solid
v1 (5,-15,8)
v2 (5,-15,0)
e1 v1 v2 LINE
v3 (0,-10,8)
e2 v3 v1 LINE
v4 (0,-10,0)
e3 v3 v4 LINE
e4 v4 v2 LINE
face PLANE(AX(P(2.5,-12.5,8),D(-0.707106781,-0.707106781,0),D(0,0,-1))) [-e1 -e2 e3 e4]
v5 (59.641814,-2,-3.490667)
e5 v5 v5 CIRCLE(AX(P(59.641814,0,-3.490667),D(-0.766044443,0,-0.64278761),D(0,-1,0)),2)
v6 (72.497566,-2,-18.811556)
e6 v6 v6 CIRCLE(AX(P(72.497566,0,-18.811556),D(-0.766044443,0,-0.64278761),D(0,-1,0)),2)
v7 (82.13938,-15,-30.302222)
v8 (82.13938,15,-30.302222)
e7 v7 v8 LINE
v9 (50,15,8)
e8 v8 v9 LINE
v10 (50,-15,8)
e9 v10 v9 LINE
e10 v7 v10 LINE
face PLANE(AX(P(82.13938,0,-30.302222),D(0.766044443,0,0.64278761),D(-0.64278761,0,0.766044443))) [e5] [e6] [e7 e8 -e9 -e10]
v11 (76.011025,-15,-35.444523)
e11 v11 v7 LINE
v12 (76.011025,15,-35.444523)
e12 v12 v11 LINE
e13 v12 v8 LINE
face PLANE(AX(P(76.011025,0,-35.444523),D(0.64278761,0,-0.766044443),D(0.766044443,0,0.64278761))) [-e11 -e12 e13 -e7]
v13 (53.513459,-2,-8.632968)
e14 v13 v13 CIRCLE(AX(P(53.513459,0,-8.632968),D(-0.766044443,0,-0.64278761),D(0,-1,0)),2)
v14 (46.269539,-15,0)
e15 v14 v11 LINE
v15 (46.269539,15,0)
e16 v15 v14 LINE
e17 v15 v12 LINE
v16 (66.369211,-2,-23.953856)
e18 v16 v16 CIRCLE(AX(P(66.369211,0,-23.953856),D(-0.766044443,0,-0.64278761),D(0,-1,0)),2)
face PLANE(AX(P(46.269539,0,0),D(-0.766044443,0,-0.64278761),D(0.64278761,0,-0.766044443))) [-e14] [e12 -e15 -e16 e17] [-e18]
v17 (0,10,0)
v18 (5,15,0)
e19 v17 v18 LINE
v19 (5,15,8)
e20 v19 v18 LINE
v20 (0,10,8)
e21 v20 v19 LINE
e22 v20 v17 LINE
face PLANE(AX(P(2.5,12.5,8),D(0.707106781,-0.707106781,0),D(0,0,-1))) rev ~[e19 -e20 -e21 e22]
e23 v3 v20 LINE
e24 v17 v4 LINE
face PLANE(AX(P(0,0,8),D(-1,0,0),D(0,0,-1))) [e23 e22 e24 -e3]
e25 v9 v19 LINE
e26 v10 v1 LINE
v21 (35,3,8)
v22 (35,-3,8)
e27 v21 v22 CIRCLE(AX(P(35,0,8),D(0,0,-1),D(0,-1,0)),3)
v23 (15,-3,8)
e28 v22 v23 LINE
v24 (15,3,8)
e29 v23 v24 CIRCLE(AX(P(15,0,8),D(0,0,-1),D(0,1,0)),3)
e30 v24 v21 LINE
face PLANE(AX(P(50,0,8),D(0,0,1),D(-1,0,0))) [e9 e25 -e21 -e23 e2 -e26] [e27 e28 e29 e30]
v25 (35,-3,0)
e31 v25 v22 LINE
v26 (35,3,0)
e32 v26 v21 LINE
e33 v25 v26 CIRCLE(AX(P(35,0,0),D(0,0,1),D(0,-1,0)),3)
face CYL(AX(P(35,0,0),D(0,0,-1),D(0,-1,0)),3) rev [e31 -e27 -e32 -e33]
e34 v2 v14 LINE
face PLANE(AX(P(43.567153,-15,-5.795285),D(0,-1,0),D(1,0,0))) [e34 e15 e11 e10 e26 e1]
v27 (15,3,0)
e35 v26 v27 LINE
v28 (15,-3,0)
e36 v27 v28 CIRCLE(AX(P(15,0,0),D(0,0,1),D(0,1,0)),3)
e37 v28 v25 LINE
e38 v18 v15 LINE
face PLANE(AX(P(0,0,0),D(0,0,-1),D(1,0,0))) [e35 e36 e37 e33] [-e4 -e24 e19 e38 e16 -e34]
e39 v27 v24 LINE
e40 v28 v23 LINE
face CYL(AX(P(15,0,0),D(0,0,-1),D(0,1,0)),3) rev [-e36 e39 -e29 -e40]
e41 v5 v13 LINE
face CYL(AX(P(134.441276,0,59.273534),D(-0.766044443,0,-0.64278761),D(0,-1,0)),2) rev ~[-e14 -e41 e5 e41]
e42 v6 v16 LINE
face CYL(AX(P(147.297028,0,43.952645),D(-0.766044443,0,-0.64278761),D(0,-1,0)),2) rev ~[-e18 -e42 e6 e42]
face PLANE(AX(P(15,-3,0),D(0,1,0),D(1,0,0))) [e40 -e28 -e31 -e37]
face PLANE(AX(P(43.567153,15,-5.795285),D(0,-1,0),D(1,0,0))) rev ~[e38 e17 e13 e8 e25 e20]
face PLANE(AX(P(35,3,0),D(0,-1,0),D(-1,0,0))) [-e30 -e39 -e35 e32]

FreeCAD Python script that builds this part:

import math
import FreeCAD as App
import Part
import Sketcher
Q = App.Units.Quantity


def edges_at(feature, points):
    """Names of the edges that pass closest to the given points."""
    edges = feature.Shape.Edges
    near = lambda p: min(range(len(edges)), key=lambda i: edges[i].distToShape(Part.Vertex(*p))[0])
    return sorted({f"Edge{near(p) + 1}" for p in points})


def add_polygon(sketch, points):
    """Adds a closed chain of lines whose ends are joined by coincident constraints."""
    first, n = sketch.GeometryCount, len(points)
    for a, b in zip(points, points[1:] + points[:1]):
        sketch.addGeometry(Part.LineSegment(App.Vector(*a, 0), App.Vector(*b, 0)), False)
    for i in range(n):
        sketch.addConstraint(Sketcher.Constraint("Coincident", first + i, 2, first + (i + 1) % n, 1))

doc = App.newDocument("Part")
body = doc.addObject("PartDesign::Body", "Body")

sketch1 = doc.addObject("Sketcher::SketchObject", "Sketch")
body.addObject(sketch1)
sketch1.AttachmentSupport = (doc.XZ_Plane, [""])
sketch1.MapMode = "FlatFace"
add_polygon(sketch1, [(0, 8), (0, 0), (46.269539, 0), (76.011025, -35.444523), (82.13938, -30.302222), (50, 8)])
sketch1.addConstraint(Sketcher.Constraint("Vertical", 0))
sketch1.addConstraint(Sketcher.Constraint("Horizontal", 1))
sketch1.addConstraint(Sketcher.Constraint("Horizontal", 5))
sketch1.addConstraint(Sketcher.Constraint("Coincident", 0, 2, -1, 1))
sketch1.addConstraint(Sketcher.Constraint("Perpendicular", 2, 3))
sketch1.addConstraint(Sketcher.Constraint("Perpendicular", 3, 4))
sketch1.addConstraint(Sketcher.Constraint("DistanceX", 5, 2, 5, 1, Q("50 mm")))
sketch1.addConstraint(Sketcher.Constraint("DistanceY", 0, 2, 0, 1, Q("8 mm")))
sketch1.addConstraint(Sketcher.Constraint("Angle", 2, Q("-50 deg")))
sketch1.addConstraint(Sketcher.Constraint("Distance", 3, Q("8 mm")))
sketch1.addConstraint(Sketcher.Constraint("Distance", 4, Q("50 mm")))
pad1 = doc.addObject("PartDesign::Pad", "Pad")
body.addObject(pad1)
pad1.Profile = sketch1
pad1.Length = 30
pad1.Midplane = True

sketch2 = doc.addObject("Sketcher::SketchObject", "Sketch001")
body.addObject(sketch2)
sketch2.AttachmentSupport = (doc.XY_Plane, [""])
sketch2.MapMode = "FlatFace"
sketch2.addGeometry(Part.ArcOfCircle(Part.Circle(App.Vector(15, 0, 0), App.Vector(0, 0, 1), 3), math.radians(90), math.radians(270)), False)
sketch2.addGeometry(Part.LineSegment(App.Vector(15, -3, 0), App.Vector(35, -3, 0)), False)
sketch2.addGeometry(Part.ArcOfCircle(Part.Circle(App.Vector(35, 0, 0), App.Vector(0, 0, 1), 3), math.radians(-90), math.radians(90)), False)
sketch2.addGeometry(Part.LineSegment(App.Vector(35, 3, 0), App.Vector(15, 3, 0)), False)
sketch2.addConstraint(Sketcher.Constraint("Tangent", 0, 2, 1, 1))
sketch2.addConstraint(Sketcher.Constraint("Tangent", 1, 2, 2, 1))
sketch2.addConstraint(Sketcher.Constraint("Tangent", 2, 2, 3, 1))
sketch2.addConstraint(Sketcher.Constraint("Tangent", 3, 2, 0, 1))
sketch2.addConstraint(Sketcher.Constraint("Horizontal", 1))
sketch2.addConstraint(Sketcher.Constraint("Horizontal", 3))
sketch2.addConstraint(Sketcher.Constraint("PointOnObject", 0, 3, -1))
sketch2.addConstraint(Sketcher.Constraint("Radius", 0, Q("3 mm")))
sketch2.addConstraint(Sketcher.Constraint("DistanceX", 1, 1, 1, 2, Q("20 mm")))
sketch2.addConstraint(Sketcher.Constraint("DistanceX", -1, 1, 0, 3, Q("15 mm")))
pocket1 = doc.addObject("PartDesign::Pocket", "Pocket")
body.addObject(pocket1)
pocket1.Profile = sketch2
pocket1.Type = "ThroughAll"
pocket1.Reversed = True

sketch3 = doc.addObject("Sketcher::SketchObject", "Sketch002")
body.addObject(sketch3)
sketch3.Placement = App.Placement(App.Vector(33.280435, 0, 27.925601), App.Rotation(App.Vector(0, 1, 0), App.Vector(-0.64278761, 0, 0.766044443), App.Vector(0.766044443, 0, 0.64278761), "ZXY"))
sketch3.addGeometry(Part.Circle(App.Vector(0, -61.011025, 0), App.Vector(0, 0, 1), 2), False)
sketch3.addGeometry(Part.Circle(App.Vector(0, -41.011025, 0), App.Vector(0, 0, 1), 2), False)
sketch3.addConstraint(Sketcher.Constraint("Equal", 0, 1))
sketch3.addConstraint(Sketcher.Constraint("PointOnObject", 0, 3, -2))
sketch3.addConstraint(Sketcher.Constraint("PointOnObject", 1, 3, -2))
sketch3.addConstraint(Sketcher.Constraint("Diameter", 0, Q("4 mm")))
sketch3.addConstraint(Sketcher.Constraint("DistanceY", 0, 3, 1, 3, Q("20 mm")))
sketch3.addConstraint(Sketcher.Constraint("DistanceY", 0, 3, -1, 1, Q("61.011025 mm")))
doc.recompute()
hole = doc.addObject("PartDesign::Hole", "Hole")
body.addObject(hole)
hole.Profile = sketch3
hole.ThreadType = "None"
hole.Diameter = 4
hole.DepthType = "ThroughAll"
doc.recompute()

chamfer = doc.addObject("PartDesign::Chamfer", "Chamfer")
body.addObject(chamfer)
chamfer.Base = (hole, edges_at(hole, [(0, 15, 4), (0, -15, 4)]))
chamfer.Size = 5

doc.recompute()
